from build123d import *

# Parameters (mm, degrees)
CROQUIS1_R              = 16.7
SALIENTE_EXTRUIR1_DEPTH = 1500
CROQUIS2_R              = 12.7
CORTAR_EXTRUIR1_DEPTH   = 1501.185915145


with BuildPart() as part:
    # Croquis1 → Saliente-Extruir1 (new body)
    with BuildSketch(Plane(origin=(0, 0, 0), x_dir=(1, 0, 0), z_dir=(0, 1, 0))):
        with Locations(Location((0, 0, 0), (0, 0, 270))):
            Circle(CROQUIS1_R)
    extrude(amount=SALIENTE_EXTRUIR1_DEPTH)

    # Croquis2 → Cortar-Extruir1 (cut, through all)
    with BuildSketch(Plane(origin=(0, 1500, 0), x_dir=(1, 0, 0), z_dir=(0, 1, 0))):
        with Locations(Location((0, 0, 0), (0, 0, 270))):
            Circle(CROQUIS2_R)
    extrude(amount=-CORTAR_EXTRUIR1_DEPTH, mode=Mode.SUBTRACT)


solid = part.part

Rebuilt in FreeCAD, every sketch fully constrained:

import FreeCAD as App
import Part
import Sketcher

V = App.Vector

doc = App.newDocument("Part")
body = doc.addObject("PartDesign::Body", "Body")

sketch1 = doc.addObject("Sketcher::SketchObject", "Sketch")
body.addObject(sketch1)
sketch1.AttachmentSupport = (doc.XZ_Plane, [""])
sketch1.MapMode = "FlatFace"
sketch1.addGeometry(Part.Circle(V(0, 0, 0), V(0, 0, 1), 16.7), False)
sketch1.addConstraint(Sketcher.Constraint("Coincident", 0, 3, -1, 1))
sketch1.addConstraint(Sketcher.Constraint("Diameter", 0, 33.4))
pad1 = doc.addObject("PartDesign::Pad", "Pad")
body.addObject(pad1)
pad1.Profile = sketch1
pad1.Length = 1500
pad1.Reversed = True

sketch2 = doc.addObject("Sketcher::SketchObject", "Sketch001")
body.addObject(sketch2)
sketch2.AttachmentSupport = (doc.XZ_Plane, [""])
sketch2.MapMode = "FlatFace"
sketch2.AttachmentOffset = App.Placement(V(0, 0, -1500), App.Rotation())
sketch2.addGeometry(Part.Circle(V(0, 0, 0), V(0, 0, 1), 12.7), False)
sketch2.addConstraint(Sketcher.Constraint("Coincident", 0, 3, -1, 1))
sketch2.addConstraint(Sketcher.Constraint("Diameter", 0, 25.4))
pocket1 = doc.addObject("PartDesign::Pocket", "Pocket")
body.addObject(pocket1)
pocket1.Profile = sketch2
pocket1.Type = "ThroughAll"
pocket1.Reversed = True

doc.recompute()
